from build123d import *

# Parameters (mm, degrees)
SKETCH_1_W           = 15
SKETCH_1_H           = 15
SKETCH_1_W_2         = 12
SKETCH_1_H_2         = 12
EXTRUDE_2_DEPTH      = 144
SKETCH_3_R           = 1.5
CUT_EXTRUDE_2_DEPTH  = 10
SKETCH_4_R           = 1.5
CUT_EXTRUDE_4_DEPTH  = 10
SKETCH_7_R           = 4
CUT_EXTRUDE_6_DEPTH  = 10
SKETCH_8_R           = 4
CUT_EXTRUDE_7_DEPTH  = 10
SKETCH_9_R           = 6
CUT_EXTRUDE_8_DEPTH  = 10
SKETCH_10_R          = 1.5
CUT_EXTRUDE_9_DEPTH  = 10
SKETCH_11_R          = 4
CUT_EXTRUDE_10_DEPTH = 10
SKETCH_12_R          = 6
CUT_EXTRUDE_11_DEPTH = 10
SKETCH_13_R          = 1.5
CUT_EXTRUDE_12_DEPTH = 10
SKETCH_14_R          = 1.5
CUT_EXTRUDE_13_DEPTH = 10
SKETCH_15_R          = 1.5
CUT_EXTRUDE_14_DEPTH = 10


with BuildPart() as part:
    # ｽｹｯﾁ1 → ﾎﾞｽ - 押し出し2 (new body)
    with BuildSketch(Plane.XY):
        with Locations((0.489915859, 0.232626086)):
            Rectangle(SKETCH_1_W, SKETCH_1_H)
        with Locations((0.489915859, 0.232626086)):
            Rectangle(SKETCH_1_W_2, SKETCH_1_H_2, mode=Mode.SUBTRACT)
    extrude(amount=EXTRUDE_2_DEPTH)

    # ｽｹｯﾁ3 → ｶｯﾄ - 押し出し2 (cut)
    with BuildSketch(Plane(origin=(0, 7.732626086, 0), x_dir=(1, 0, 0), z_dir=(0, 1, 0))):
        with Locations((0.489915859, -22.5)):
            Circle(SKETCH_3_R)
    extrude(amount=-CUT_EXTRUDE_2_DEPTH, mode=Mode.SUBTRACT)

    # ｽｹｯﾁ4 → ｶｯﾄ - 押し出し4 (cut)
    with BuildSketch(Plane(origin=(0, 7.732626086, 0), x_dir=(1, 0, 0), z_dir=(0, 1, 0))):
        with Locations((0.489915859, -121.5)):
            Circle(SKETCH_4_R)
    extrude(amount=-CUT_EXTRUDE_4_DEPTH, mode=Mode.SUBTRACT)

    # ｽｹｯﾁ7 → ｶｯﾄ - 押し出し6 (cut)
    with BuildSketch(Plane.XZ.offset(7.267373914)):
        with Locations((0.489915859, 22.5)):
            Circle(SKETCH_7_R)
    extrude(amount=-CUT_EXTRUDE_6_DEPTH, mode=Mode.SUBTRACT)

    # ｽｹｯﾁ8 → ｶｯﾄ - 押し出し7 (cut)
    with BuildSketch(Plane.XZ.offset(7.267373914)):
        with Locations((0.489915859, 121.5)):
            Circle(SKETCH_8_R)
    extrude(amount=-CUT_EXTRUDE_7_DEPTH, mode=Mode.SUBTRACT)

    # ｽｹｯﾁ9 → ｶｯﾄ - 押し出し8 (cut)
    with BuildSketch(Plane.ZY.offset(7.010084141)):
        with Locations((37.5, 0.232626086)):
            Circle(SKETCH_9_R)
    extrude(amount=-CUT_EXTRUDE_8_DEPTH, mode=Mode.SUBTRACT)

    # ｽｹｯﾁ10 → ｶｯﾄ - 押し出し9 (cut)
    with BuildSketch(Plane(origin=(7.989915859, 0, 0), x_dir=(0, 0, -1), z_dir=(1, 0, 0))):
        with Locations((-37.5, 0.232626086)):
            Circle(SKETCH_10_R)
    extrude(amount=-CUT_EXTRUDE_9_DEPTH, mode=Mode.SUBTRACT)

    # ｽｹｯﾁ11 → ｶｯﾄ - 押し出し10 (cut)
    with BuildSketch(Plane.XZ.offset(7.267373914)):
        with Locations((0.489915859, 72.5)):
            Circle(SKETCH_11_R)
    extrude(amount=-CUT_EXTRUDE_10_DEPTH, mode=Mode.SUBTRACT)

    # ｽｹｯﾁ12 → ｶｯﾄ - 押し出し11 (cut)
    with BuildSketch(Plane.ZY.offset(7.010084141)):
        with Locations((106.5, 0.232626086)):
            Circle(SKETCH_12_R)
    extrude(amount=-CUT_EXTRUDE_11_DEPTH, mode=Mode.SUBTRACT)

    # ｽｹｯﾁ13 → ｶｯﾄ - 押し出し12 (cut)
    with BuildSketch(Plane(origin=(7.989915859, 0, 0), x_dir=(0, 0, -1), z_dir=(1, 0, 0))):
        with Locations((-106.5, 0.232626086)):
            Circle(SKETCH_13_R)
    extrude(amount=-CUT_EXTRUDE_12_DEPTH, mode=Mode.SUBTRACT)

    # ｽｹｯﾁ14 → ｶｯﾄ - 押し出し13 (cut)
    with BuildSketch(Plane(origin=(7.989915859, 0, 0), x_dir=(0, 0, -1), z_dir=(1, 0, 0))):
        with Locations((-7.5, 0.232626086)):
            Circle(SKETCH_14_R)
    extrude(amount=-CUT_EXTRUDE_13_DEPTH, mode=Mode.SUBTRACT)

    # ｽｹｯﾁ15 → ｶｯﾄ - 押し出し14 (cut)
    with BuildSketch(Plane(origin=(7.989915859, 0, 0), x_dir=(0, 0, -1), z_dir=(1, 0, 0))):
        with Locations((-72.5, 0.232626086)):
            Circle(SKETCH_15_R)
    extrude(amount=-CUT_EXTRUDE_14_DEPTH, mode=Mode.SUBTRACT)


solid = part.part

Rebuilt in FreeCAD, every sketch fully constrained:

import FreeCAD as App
import Part
import Sketcher

V = App.Vector
Q = App.Units.Quantity


def add_polygon(sketch, points):
    """Adds a closed chain of lines whose ends are joined by coincident constraints."""
    first, n = sketch.GeometryCount, len(points)
    for a, b in zip(points, points[1:] + points[:1]):
        sketch.addGeometry(Part.LineSegment(App.Vector(*a, 0), App.Vector(*b, 0)), False)
    for i in range(n):
        sketch.addConstraint(Sketcher.Constraint("Coincident", first + i, 2, first + (i + 1) % n, 1))

doc = App.newDocument("Part")
body = doc.addObject("PartDesign::Body", "Body")

# Sketch on XY plane
sketch1 = body.newObject("Sketcher::SketchObject", "Sketch")
sketch1.AttachmentSupport = (doc.getObject("XY_Plane"), [""])
sketch1.MapMode = "FlatFace"
add_polygon(sketch1, [(-7.010084, 7.732626), (-7.010084, -7.267374), (7.989916, -7.267374), (7.989916, 7.732626)])  # lines 0-3
add_polygon(sketch1, [(6.489916, -5.767374), (-5.510084, -5.767374), (-5.510084, 6.232626), (6.489916, 6.232626)])  # lines 4-7
sketch1.addConstraint([
    Sketcher.Constraint("Vertical", 0),
    Sketcher.Constraint("Horizontal", 1),
    Sketcher.Constraint("Vertical", 2),
    Sketcher.Constraint("Horizontal", 3),
    Sketcher.Constraint("Horizontal", 4),
    Sketcher.Constraint("Vertical", 5),
    Sketcher.Constraint("Horizontal", 6),
    Sketcher.Constraint("Vertical", 7),
    Sketcher.Constraint("Equal", 3, 0),
    Sketcher.Constraint("Equal", 6, 5),
    Sketcher.Constraint("DistanceX", 1, 1, 1, 2, Q("15 mm")),
    Sketcher.Constraint("DistanceX", 4, 2, 4, 1, Q("12 mm")),
    Sketcher.Constraint("DistanceX", 0, 2, 4, 2, Q("1.5 mm")),
    Sketcher.Constraint("DistanceY", 0, 2, 4, 2, Q("1.5 mm")),
    Sketcher.Constraint("DistanceX", 0, 2, -1, 1, Q("7.010084 mm")),
    Sketcher.Constraint("DistanceY", 0, 2, -1, 1, Q("7.267374 mm")),
])
pad1 = body.newObject("PartDesign::Pad", "Pad")
pad1.Profile = sketch1
pad1.Length = 144

# Sketch on XZ plane
sketch2 = body.newObject("Sketcher::SketchObject", "Sketch001")
sketch2.AttachmentSupport = (doc.getObject("XZ_Plane"), [""])
sketch2.MapMode = "FlatFace"
sketch2.AttachmentOffset = App.Placement(V(0, 0, -7.732626), App.Rotation())
sketch2.addGeometry(Part.Circle(V(0.489916, 22.5, 0), V(0, 0, 1), 1.5), False)
sketch2.addConstraint([
    Sketcher.Constraint("Diameter", 0, Q("3 mm")),
    Sketcher.Constraint("DistanceY", -1, 1, 0, 3, Q("22.5 mm")),
    Sketcher.Constraint("DistanceX", -1, 1, 0, 3, Q("0.489916 mm")),
])
pocket1 = body.newObject("PartDesign::Pocket", "Pocket")
pocket1.Profile = sketch2
pocket1.Length = 10
pocket1.Reversed = True

# Sketch on XZ plane
sketch3 = body.newObject("Sketcher::SketchObject", "Sketch002")
sketch3.AttachmentSupport = (doc.getObject("XZ_Plane"), [""])
sketch3.MapMode = "FlatFace"
sketch3.AttachmentOffset = App.Placement(V(0, 0, -7.732626), App.Rotation())
sketch3.addGeometry(Part.Circle(V(0.489916, 121.5, 0), V(0, 0, 1), 1.5), False)
sketch3.addConstraint([
    Sketcher.Constraint("Diameter", 0, Q("3 mm")),
    Sketcher.Constraint("DistanceY", -1, 1, 0, 3, Q("121.5 mm")),
    Sketcher.Constraint("DistanceX", -1, 1, 0, 3, Q("0.489916 mm")),
])
pocket2 = body.newObject("PartDesign::Pocket", "Pocket001")
pocket2.Profile = sketch3
pocket2.Length = 10
pocket2.Reversed = True

# Sketch on XZ plane
sketch4 = body.newObject("Sketcher::SketchObject", "Sketch003")
sketch4.AttachmentSupport = (doc.getObject("XZ_Plane"), [""])
sketch4.MapMode = "FlatFace"
sketch4.AttachmentOffset = App.Placement(V(0, 0, 7.267374), App.Rotation())
sketch4.addGeometry(Part.Circle(V(0.489916, 22.5, 0), V(0, 0, 1), 4), False)
sketch4.addConstraint([
    Sketcher.Constraint("Diameter", 0, Q("8 mm")),
    Sketcher.Constraint("DistanceY", -1, 1, 0, 3, Q("22.5 mm")),
    Sketcher.Constraint("DistanceX", -1, 1, 0, 3, Q("0.489916 mm")),
])
pocket3 = body.newObject("PartDesign::Pocket", "Pocket002")
pocket3.Profile = sketch4
pocket3.Length = 10

# Sketch on XZ plane
sketch5 = body.newObject("Sketcher::SketchObject", "Sketch004")
sketch5.AttachmentSupport = (doc.getObject("XZ_Plane"), [""])
sketch5.MapMode = "FlatFace"
sketch5.AttachmentOffset = App.Placement(V(0, 0, 7.267374), App.Rotation())
sketch5.addGeometry(Part.Circle(V(0.489916, 121.5, 0), V(0, 0, 1), 4), False)
sketch5.addConstraint([
    Sketcher.Constraint("Diameter", 0, Q("8 mm")),
    Sketcher.Constraint("DistanceY", -1, 1, 0, 3, Q("121.5 mm")),
    Sketcher.Constraint("DistanceX", -1, 1, 0, 3, Q("0.489916 mm")),
])
pocket4 = body.newObject("PartDesign::Pocket", "Pocket003")
pocket4.Profile = sketch5
pocket4.Length = 10

# Sketch on YZ plane
sketch6 = body.newObject("Sketcher::SketchObject", "Sketch005")
sketch6.AttachmentSupport = (doc.getObject("YZ_Plane"), [""])
sketch6.MapMode = "FlatFace"
sketch6.AttachmentOffset = App.Placement(V(0, 0, -7.010084), App.Rotation())
sketch6.addGeometry(Part.Circle(V(0.232626, 37.5, 0), V(0, 0, 1), 6), False)
sketch6.addConstraint([
    Sketcher.Constraint("Diameter", 0, Q("12 mm")),
    Sketcher.Constraint("DistanceY", -1, 1, 0, 3, Q("37.5 mm")),
    Sketcher.Constraint("DistanceX", -1, 1, 0, 3, Q("0.232626 mm")),
])
pocket5 = body.newObject("PartDesign::Pocket", "Pocket004")
pocket5.Profile = sketch6
pocket5.Length = 10
pocket5.Reversed = True

# Sketch on YZ plane
sketch7 = body.newObject("Sketcher::SketchObject", "Sketch006")
sketch7.AttachmentSupport = (doc.getObject("YZ_Plane"), [""])
sketch7.MapMode = "FlatFace"
sketch7.AttachmentOffset = App.Placement(V(0, 0, 7.989916), App.Rotation())
sketch7.addGeometry(Part.Circle(V(0.232626, 37.5, 0), V(0, 0, 1), 1.5), False)
sketch7.addConstraint([
    Sketcher.Constraint("Diameter", 0, Q("3 mm")),
    Sketcher.Constraint("DistanceY", -1, 1, 0, 3, Q("37.5 mm")),
    Sketcher.Constraint("DistanceX", -1, 1, 0, 3, Q("0.232626 mm")),
])
pocket6 = body.newObject("PartDesign::Pocket", "Pocket005")
pocket6.Profile = sketch7
pocket6.Length = 10

# Sketch on XZ plane
sketch8 = body.newObject("Sketcher::SketchObject", "Sketch007")
sketch8.AttachmentSupport = (doc.getObject("XZ_Plane"), [""])
sketch8.MapMode = "FlatFace"
sketch8.AttachmentOffset = App.Placement(V(0, 0, 7.267374), App.Rotation())
sketch8.addGeometry(Part.Circle(V(0.489916, 72.5, 0), V(0, 0, 1), 4), False)
sketch8.addConstraint([
    Sketcher.Constraint("Diameter", 0, Q("8 mm")),
    Sketcher.Constraint("DistanceY", -1, 1, 0, 3, Q("72.5 mm")),
    Sketcher.Constraint("DistanceX", -1, 1, 0, 3, Q("0.489916 mm")),
])
pocket7 = body.newObject("PartDesign::Pocket", "Pocket006")
pocket7.Profile = sketch8
pocket7.Length = 10

# Sketch on YZ plane
sketch9 = body.newObject("Sketcher::SketchObject", "Sketch008")
sketch9.AttachmentSupport = (doc.getObject("YZ_Plane"), [""])
sketch9.MapMode = "FlatFace"
sketch9.AttachmentOffset = App.Placement(V(0, 0, -7.010084), App.Rotation())
sketch9.addGeometry(Part.Circle(V(0.232626, 106.5, 0), V(0, 0, 1), 6), False)
sketch9.addConstraint([
    Sketcher.Constraint("Diameter", 0, Q("12 mm")),
    Sketcher.Constraint("DistanceY", -1, 1, 0, 3, Q("106.5 mm")),
    Sketcher.Constraint("DistanceX", -1, 1, 0, 3, Q("0.232626 mm")),
])
pocket8 = body.newObject("PartDesign::Pocket", "Pocket007")
pocket8.Profile = sketch9
pocket8.Length = 10
pocket8.Reversed = True

# Sketch on YZ plane
sketch10 = body.newObject("Sketcher::SketchObject", "Sketch009")
sketch10.AttachmentSupport = (doc.getObject("YZ_Plane"), [""])
sketch10.MapMode = "FlatFace"
sketch10.AttachmentOffset = App.Placement(V(0, 0, 7.989916), App.Rotation())
sketch10.addGeometry(Part.Circle(V(0.232626, 106.5, 0), V(0, 0, 1), 1.5), False)
sketch10.addConstraint([
    Sketcher.Constraint("Diameter", 0, Q("3 mm")),
    Sketcher.Constraint("DistanceY", -1, 1, 0, 3, Q("106.5 mm")),
    Sketcher.Constraint("DistanceX", -1, 1, 0, 3, Q("0.232626 mm")),
])
pocket9 = body.newObject("PartDesign::Pocket", "Pocket008")
pocket9.Profile = sketch10
pocket9.Length = 10

# Sketch on YZ plane
sketch11 = body.newObject("Sketcher::SketchObject", "Sketch010")
sketch11.AttachmentSupport = (doc.getObject("YZ_Plane"), [""])
sketch11.MapMode = "FlatFace"
sketch11.AttachmentOffset = App.Placement(V(0, 0, 7.989916), App.Rotation())
sketch11.addGeometry(Part.Circle(V(0.232626, 7.5, 0), V(0, 0, 1), 1.5), False)
sketch11.addConstraint([
    Sketcher.Constraint("Diameter", 0, Q("3 mm")),
    Sketcher.Constraint("DistanceY", -1, 1, 0, 3, Q("7.5 mm")),
    Sketcher.Constraint("DistanceX", -1, 1, 0, 3, Q("0.232626 mm")),
])
pocket10 = body.newObject("PartDesign::Pocket", "Pocket009")
pocket10.Profile = sketch11
pocket10.Length = 10

# Sketch on YZ plane
sketch12 = body.newObject("Sketcher::SketchObject", "Sketch011")
sketch12.AttachmentSupport = (doc.getObject("YZ_Plane"), [""])
sketch12.MapMode = "FlatFace"
sketch12.AttachmentOffset = App.Placement(V(0, 0, 7.989916), App.Rotation())
sketch12.addGeometry(Part.Circle(V(0.232626, 72.5, 0), V(0, 0, 1), 1.5), False)
sketch12.addConstraint([
    Sketcher.Constraint("Diameter", 0, Q("3 mm")),
    Sketcher.Constraint("DistanceY", -1, 1, 0, 3, Q("72.5 mm")),
    Sketcher.Constraint("DistanceX", -1, 1, 0, 3, Q("0.232626 mm")),
])
pocket11 = body.newObject("PartDesign::Pocket", "Pocket010")
pocket11.Profile = sketch12
pocket11.Length = 10

doc.recompute()
